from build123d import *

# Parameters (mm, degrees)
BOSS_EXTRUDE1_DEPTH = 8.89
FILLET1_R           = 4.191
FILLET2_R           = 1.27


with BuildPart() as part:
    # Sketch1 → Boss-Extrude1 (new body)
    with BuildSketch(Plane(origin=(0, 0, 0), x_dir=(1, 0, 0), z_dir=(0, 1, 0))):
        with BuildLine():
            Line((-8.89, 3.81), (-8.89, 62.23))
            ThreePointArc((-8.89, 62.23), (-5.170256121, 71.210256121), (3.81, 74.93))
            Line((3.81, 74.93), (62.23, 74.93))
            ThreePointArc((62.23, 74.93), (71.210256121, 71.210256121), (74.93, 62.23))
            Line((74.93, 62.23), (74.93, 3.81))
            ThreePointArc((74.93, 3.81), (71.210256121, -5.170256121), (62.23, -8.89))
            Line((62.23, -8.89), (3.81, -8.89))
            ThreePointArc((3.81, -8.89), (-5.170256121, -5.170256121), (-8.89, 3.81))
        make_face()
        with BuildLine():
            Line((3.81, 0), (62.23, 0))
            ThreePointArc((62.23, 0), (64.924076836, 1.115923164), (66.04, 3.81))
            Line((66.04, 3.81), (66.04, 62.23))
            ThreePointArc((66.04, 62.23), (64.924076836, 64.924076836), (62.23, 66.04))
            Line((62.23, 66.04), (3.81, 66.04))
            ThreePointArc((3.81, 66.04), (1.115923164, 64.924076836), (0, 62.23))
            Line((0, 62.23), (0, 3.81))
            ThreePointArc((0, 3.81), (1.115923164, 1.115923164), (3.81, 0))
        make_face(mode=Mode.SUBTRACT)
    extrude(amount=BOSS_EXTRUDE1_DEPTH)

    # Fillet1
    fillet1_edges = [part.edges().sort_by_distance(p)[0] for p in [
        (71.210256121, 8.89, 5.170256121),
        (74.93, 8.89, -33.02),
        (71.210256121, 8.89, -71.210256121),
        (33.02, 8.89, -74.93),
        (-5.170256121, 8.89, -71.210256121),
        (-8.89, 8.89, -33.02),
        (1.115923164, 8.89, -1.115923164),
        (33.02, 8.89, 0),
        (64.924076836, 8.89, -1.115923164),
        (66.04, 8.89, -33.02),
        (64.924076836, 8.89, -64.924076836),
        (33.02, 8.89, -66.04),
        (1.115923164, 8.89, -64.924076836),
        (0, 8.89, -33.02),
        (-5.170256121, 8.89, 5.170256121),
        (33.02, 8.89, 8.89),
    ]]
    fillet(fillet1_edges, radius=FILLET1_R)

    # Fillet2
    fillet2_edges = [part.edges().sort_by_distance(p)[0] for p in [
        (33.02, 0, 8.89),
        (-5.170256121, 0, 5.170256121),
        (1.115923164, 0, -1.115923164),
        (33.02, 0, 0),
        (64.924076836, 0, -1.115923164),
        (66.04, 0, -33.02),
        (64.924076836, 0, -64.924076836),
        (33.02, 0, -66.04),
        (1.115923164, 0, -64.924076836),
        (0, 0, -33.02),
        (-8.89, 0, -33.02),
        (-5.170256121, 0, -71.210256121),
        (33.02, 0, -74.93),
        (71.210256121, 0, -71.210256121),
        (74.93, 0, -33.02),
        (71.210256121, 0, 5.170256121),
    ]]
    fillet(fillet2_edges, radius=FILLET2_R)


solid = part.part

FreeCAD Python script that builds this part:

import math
import FreeCAD as App
import Part
import Sketcher

V = App.Vector
Q = App.Units.Quantity


def edges_at(feature, points):
    """Names of the edges that pass closest to the given points."""
    edges = feature.Shape.Edges
    near = lambda p: min(range(len(edges)), key=lambda i: edges[i].distToShape(Part.Vertex(*p))[0])
    return sorted({f"Edge{near(p) + 1}" for p in points})

doc = App.newDocument("Part")
params = doc.addObject("Spreadsheet::Sheet", "Params")
for row, (alias, value) in enumerate([
    ("sketch1_radius", "0.5 in"),
    ("sketch1_radius2", "0.15 in"),
    ("sketch1_width", "2.3 in"),
    ("pad1_length", "0.35 in"),
    ("fillet_radius", "0.165 in"),
    ("fillet2_radius", "0.05 in"),
], start=1):
    params.set(f"A{row}", alias)
    params.set(f"B{row}", "=" + value)
    params.setAlias(f"B{row}", alias)

body = doc.addObject("PartDesign::Body", "Body")

# Sketch on XZ plane
sketch1 = body.newObject("Sketcher::SketchObject", "Sketch")
sketch1.AttachmentSupport = (doc.getObject("XZ_Plane"), [""])
sketch1.MapMode = "FlatFace"
sketch1.addGeometry(Part.LineSegment(V(-8.9, -62.2, 0), V(-8.9, -3.8, 0)), False)
sketch1.addGeometry(Part.ArcOfCircle(Part.Circle(V(3.8, -3.8, 0), V(0, 0, 1), 12.7), math.radians(90), math.radians(180)), False)
sketch1.addGeometry(Part.LineSegment(V(3.8, 8.9, 0), V(62.2, 8.9, 0)), False)
sketch1.addGeometry(Part.ArcOfCircle(Part.Circle(V(62.2, -3.8, 0), V(0, 0, 1), 12.7), math.radians(0), math.radians(90)), False)
sketch1.addGeometry(Part.LineSegment(V(74.9, -3.8, 0), V(74.9, -62.2, 0)), False)
sketch1.addGeometry(Part.ArcOfCircle(Part.Circle(V(62.2, -62.2, 0), V(0, 0, 1), 12.7), math.radians(-90), math.radians(0)), False)
sketch1.addGeometry(Part.LineSegment(V(62.2, -74.9, 0), V(3.8, -74.9, 0)), False)
sketch1.addGeometry(Part.ArcOfCircle(Part.Circle(V(3.8, -62.2, 0), V(0, 0, 1), 12.7), math.radians(180), math.radians(270)), False)
sketch1.addGeometry(Part.ArcOfCircle(Part.Circle(V(3.8, -3.8, 0), V(0, 0, 1), 3.8), math.radians(90), math.radians(180)), False)
sketch1.addGeometry(Part.LineSegment(V(0, -3.8, 0), V(0, -62.2, 0)), False)
sketch1.addGeometry(Part.ArcOfCircle(Part.Circle(V(3.8, -62.2, 0), V(0, 0, 1), 3.8), math.radians(-180), math.radians(-90)), False)
sketch1.addGeometry(Part.LineSegment(V(3.8, -66, 0), V(62.2, -66, 0)), False)
sketch1.addGeometry(Part.ArcOfCircle(Part.Circle(V(62.2, -62.2, 0), V(0, 0, 1), 3.8), math.radians(-90), math.radians(0)), False)
sketch1.addGeometry(Part.LineSegment(V(66, -62.2, 0), V(66, -3.8, 0)), False)
sketch1.addGeometry(Part.ArcOfCircle(Part.Circle(V(62.2, -3.8, 0), V(0, 0, 1), 3.8), math.radians(0), math.radians(90)), False)
sketch1.addGeometry(Part.LineSegment(V(62.2, 0, 0), V(3.8, 0, 0)), False)
sketch1.addConstraint(Sketcher.Constraint("Tangent", 0, 2, 1, 2))
sketch1.addConstraint(Sketcher.Constraint("Tangent", 1, 1, 2, 1))
sketch1.addConstraint(Sketcher.Constraint("Tangent", 2, 2, 3, 2))
sketch1.addConstraint(Sketcher.Constraint("Tangent", 3, 1, 4, 1))
sketch1.addConstraint(Sketcher.Constraint("Tangent", 4, 2, 5, 2))
sketch1.addConstraint(Sketcher.Constraint("Tangent", 5, 1, 6, 1))
sketch1.addConstraint(Sketcher.Constraint("Tangent", 6, 2, 7, 2))
sketch1.addConstraint(Sketcher.Constraint("Tangent", 7, 1, 0, 1))
sketch1.addConstraint(Sketcher.Constraint("Tangent", 8, 2, 9, 1))
sketch1.addConstraint(Sketcher.Constraint("Tangent", 9, 2, 10, 1))
sketch1.addConstraint(Sketcher.Constraint("Tangent", 10, 2, 11, 1))
sketch1.addConstraint(Sketcher.Constraint("Tangent", 11, 2, 12, 1))
sketch1.addConstraint(Sketcher.Constraint("Tangent", 12, 2, 13, 1))
sketch1.addConstraint(Sketcher.Constraint("Tangent", 13, 2, 14, 1))
sketch1.addConstraint(Sketcher.Constraint("Tangent", 14, 2, 15, 1))
sketch1.addConstraint(Sketcher.Constraint("Tangent", 15, 2, 8, 1))
sketch1.addConstraint(Sketcher.Constraint("Vertical", 0))
sketch1.addConstraint(Sketcher.Constraint("Horizontal", 2))
sketch1.addConstraint(Sketcher.Constraint("Vertical", 4))
sketch1.addConstraint(Sketcher.Constraint("Horizontal", 6))
sketch1.addConstraint(Sketcher.Constraint("Vertical", 9))
sketch1.addConstraint(Sketcher.Constraint("Horizontal", 11))
sketch1.addConstraint(Sketcher.Constraint("Vertical", 13))
sketch1.addConstraint(Sketcher.Constraint("Horizontal", 15))
sketch1.addConstraint(Sketcher.Constraint("Coincident", 8, 3, 1, 3))
sketch1.addConstraint(Sketcher.Constraint("Coincident", 10, 3, 7, 3))
sketch1.addConstraint(Sketcher.Constraint("Coincident", 12, 3, 5, 3))
sketch1.addConstraint(Sketcher.Constraint("Equal", 1, 3))
sketch1.addConstraint(Sketcher.Constraint("Equal", 3, 5))
sketch1.addConstraint(Sketcher.Constraint("Equal", 5, 7))
sketch1.addConstraint(Sketcher.Constraint("Equal", 12, 14))
sketch1.addConstraint(Sketcher.Constraint("PointOnObject", 8, 2, -2))
sketch1.addConstraint(Sketcher.Constraint("PointOnObject", 14, 2, -1))
sketch1.addConstraint(Sketcher.Constraint("Equal", 15, 0))
sketch1.addConstraint(Sketcher.Constraint("Radius", 1, Q("0.5 in")))
sketch1.addConstraint(Sketcher.Constraint("Radius", 8, Q("0.15 in")))
sketch1.addConstraint(Sketcher.Constraint("DistanceX", 2, 1, 2, 2, Q("2.3 in")))
sketch1.setExpression("Constraints[34]", "Params.sketch1_radius")
sketch1.setExpression("Constraints[35]", "Params.sketch1_radius2")
sketch1.setExpression("Constraints[36]", "Params.sketch1_width")
pad1 = body.newObject("PartDesign::Pad", "Pad")
pad1.Profile = sketch1
pad1.setExpression("Length", "Params.pad1_length")
pad1.Reversed = True
doc.recompute()

fillet = body.newObject("PartDesign::Fillet", "Fillet")
fillet.Base = (pad1, edges_at(pad1, [
    (71.21, 8.89, 5.17),
    (74.93, 8.89, -33.02),
    (71.21, 8.89, -71.21),
    (33.02, 8.89, -74.93),
    (-5.17, 8.89, -71.21),
    (-8.89, 8.89, -33.02),
    (1.116, 8.89, -1.116),
    (33.02, 8.89, 0),
    (64.924, 8.89, -1.116),
    (66.04, 8.89, -33.02),
    (64.924, 8.89, -64.924),
    (33.02, 8.89, -66.04),
    (1.116, 8.89, -64.924),
    (0, 8.89, -33.02),
    (-5.17, 8.89, 5.17),
    (33.02, 8.89, 8.89),
]))
fillet.setExpression("Radius", "Params.fillet_radius")
doc.recompute()

fillet2 = body.newObject("PartDesign::Fillet", "Fillet001")
fillet2.Base = (fillet, edges_at(fillet, [
    (33.02, 0, 8.89),
    (-5.17, 0, 5.17),
    (1.116, 0, -1.116),
    (33.02, 0, 0),
    (64.924, 0, -1.116),
    (66.04, 0, -33.02),
    (64.924, 0, -64.924),
    (33.02, 0, -66.04),
    (1.116, 0, -64.924),
    (0, 0, -33.02),
    (-8.89, 0, -33.02),
    (-5.17, 0, -71.21),
    (33.02, 0, -74.93),
    (71.21, 0, -71.21),
    (74.93, 0, -33.02),
    (71.21, 0, 5.17),
]))
fillet2.setExpression("Radius", "Params.fillet2_radius")

doc.recompute()
